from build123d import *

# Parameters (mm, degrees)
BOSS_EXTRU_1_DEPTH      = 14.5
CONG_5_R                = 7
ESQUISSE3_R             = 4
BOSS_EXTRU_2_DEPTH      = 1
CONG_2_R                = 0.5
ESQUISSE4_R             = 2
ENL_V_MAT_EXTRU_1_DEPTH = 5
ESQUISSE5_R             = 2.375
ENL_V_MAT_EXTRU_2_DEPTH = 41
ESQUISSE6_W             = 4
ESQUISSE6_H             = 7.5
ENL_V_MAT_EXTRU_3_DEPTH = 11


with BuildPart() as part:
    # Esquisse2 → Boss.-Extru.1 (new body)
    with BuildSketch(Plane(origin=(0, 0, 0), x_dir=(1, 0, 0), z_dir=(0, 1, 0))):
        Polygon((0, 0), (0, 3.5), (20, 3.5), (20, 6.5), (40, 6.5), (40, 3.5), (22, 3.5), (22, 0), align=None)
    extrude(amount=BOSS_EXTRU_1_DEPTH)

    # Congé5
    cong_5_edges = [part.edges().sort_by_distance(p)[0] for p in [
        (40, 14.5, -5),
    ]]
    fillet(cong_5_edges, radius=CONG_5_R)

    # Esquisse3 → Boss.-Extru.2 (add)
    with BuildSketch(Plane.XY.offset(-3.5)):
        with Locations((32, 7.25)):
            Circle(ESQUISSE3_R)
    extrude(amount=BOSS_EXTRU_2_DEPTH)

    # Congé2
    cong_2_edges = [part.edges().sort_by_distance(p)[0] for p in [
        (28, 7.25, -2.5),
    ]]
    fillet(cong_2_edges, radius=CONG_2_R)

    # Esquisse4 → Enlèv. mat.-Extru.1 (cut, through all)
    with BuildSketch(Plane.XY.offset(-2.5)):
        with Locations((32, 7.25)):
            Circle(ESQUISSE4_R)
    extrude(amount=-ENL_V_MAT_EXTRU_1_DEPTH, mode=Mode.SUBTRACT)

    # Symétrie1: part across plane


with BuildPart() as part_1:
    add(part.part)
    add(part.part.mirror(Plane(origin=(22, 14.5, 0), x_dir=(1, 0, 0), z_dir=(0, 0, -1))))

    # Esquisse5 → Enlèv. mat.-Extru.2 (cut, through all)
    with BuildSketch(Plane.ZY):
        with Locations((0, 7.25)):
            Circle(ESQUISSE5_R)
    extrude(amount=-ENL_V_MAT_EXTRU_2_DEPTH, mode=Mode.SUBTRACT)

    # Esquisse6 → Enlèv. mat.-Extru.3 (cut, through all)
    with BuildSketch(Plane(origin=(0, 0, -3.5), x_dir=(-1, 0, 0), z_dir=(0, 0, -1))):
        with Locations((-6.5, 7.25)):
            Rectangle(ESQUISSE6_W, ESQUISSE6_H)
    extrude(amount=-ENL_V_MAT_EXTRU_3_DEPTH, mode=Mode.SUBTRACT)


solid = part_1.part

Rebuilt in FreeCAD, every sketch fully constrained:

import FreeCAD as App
import Part
import Sketcher
from FreeCAD import Vector
Q = App.Units.Quantity


def edges_at(feature, points):
    """Names of the edges that pass closest to the given points."""
    edges = feature.Shape.Edges
    near = lambda p: min(range(len(edges)), key=lambda i: edges[i].distToShape(Part.Vertex(*p))[0])
    return sorted({f"Edge{near(p) + 1}" for p in points})


def add_polygon(sketch, points):
    """Adds a closed chain of lines whose ends are joined by coincident constraints."""
    first, n = sketch.GeometryCount, len(points)
    for a, b in zip(points, points[1:] + points[:1]):
        sketch.addGeometry(Part.LineSegment(App.Vector(*a, 0), App.Vector(*b, 0)), False)
    for i in range(n):
        sketch.addConstraint(Sketcher.Constraint("Coincident", first + i, 2, first + (i + 1) % n, 1))

doc = App.newDocument("Part")
body = doc.addObject("PartDesign::Body", "Body")

sketch1 = body.newObject("Sketcher::SketchObject", "Sketch")
sketch1.AttachmentSupport = (doc.getObject("XZ_Plane"), [""])
sketch1.MapMode = "FlatFace"
add_polygon(sketch1, [(0, -3.5), (0, 0), (22, 0), (22, -3.5), (40, -3.5), (40, -6.5), (20, -6.5), (20, -3.5)])
sketch1.addConstraint([
    Sketcher.Constraint("Vertical", 0),
    Sketcher.Constraint("Horizontal", 1),
    Sketcher.Constraint("Vertical", 2),
    Sketcher.Constraint("Horizontal", 3),
    Sketcher.Constraint("Vertical", 4),
    Sketcher.Constraint("Horizontal", 5),
    Sketcher.Constraint("Vertical", 6),
    Sketcher.Constraint("Horizontal", 7),
    Sketcher.Constraint("Coincident", 0, 2, -1, 1),
    Sketcher.Constraint("Horizontal", 3, 2, 6, 2),
    Sketcher.Constraint("Equal", 5, 7),
    Sketcher.Constraint("DistanceX", 1, 1, 1, 2, Q("22 mm")),
    Sketcher.Constraint("DistanceX", 3, 1, 3, 2, Q("18 mm")),
    Sketcher.Constraint("DistanceY", 4, 2, 4, 1, Q("3 mm")),
    Sketcher.Constraint("DistanceY", 0, 1, 0, 2, Q("3.5 mm")),
])
pad1 = body.newObject("PartDesign::Pad", "Pad")
pad1.Profile = sketch1
pad1.Length = 14.5
pad1.Reversed = True
doc.recompute()

fillet = body.newObject("PartDesign::Fillet", "Fillet")
fillet.Base = (pad1, edges_at(pad1, [(40, 14.5, -5)]))
fillet.Radius = 7

sketch2 = body.newObject("Sketcher::SketchObject", "Sketch001")
sketch2.AttachmentSupport = (doc.getObject("XY_Plane"), [""])
sketch2.MapMode = "FlatFace"
sketch2.AttachmentOffset = App.Placement(Vector(0, 0, -3.5), App.Rotation())
sketch2.addGeometry(Part.Circle(Vector(32, 7.25, 0), Vector(0, 0, 1), 4), False)
sketch2.addConstraint([
    Sketcher.Constraint("Diameter", 0, Q("8 mm")),
    Sketcher.Constraint("DistanceX", -1, 1, 0, 3, Q("32 mm")),
    Sketcher.Constraint("DistanceY", -1, 1, 0, 3, Q("7.25 mm")),
])
pad2 = body.newObject("PartDesign::Pad", "Pad001")
pad2.Profile = sketch2
pad2.Length = 1
doc.recompute()

fillet2 = body.newObject("PartDesign::Fillet", "Fillet001")
fillet2.Base = (pad2, edges_at(pad2, [(28, 7.25, -2.5)]))
fillet2.Radius = 0.5

sketch3 = body.newObject("Sketcher::SketchObject", "Sketch002")
sketch3.AttachmentSupport = (doc.getObject("XY_Plane"), [""])
sketch3.MapMode = "FlatFace"
sketch3.AttachmentOffset = App.Placement(Vector(0, 0, -2.5), App.Rotation())
sketch3.addGeometry(Part.Circle(Vector(32, 7.25, 0), Vector(0, 0, 1), 2), False)
sketch3.addConstraint([
    Sketcher.Constraint("Diameter", 0, Q("4 mm")),
    Sketcher.Constraint("DistanceX", -1, 1, 0, 3, Q("32 mm")),
    Sketcher.Constraint("DistanceY", -1, 1, 0, 3, Q("7.25 mm")),
])
pocket1 = body.newObject("PartDesign::Pocket", "Pocket")
pocket1.Profile = sketch3
pocket1.Type = "ThroughAll"
body2 = doc.addObject("PartDesign::Body", "Body001")
doc.recompute()

body2.BaseFeature = body
doc.recompute()

mirroring = doc.addObject("Part::Mirroring", "Mirroring")
mirroring.Source = body
mirroring.Base = Vector(22, 14.5, 0)
mirroring.Normal = Vector(0, 0, -1)
body3 = doc.addObject("PartDesign::Body", "Body002")
body3.BaseFeature = mirroring
boolean = body2.newObject("PartDesign::Boolean", "Boolean")
boolean.Type = "Fuse"
boolean.addObjects([body3])
doc.recompute()

sketch4 = body2.newObject("Sketcher::SketchObject", "Sketch003")
sketch4.AttachmentSupport = (doc.getObject("YZ_Plane001"), [""])
sketch4.MapMode = "FlatFace"
sketch4.addGeometry(Part.Circle(Vector(7.25, 0, 0), Vector(0, 0, 1), 2.375), False)
sketch4.addConstraint([
    Sketcher.Constraint("PointOnObject", 0, 3, -1),
    Sketcher.Constraint("Diameter", 0, Q("4.75 mm")),
    Sketcher.Constraint("DistanceX", -1, 1, 0, 3, Q("7.25 mm")),
])
pocket2 = body2.newObject("PartDesign::Pocket", "Pocket001")
pocket2.Profile = sketch4
pocket2.Type = "ThroughAll"
pocket2.Reversed = True

sketch5 = body2.newObject("Sketcher::SketchObject", "Sketch004")
sketch5.AttachmentSupport = (doc.getObject("XY_Plane001"), [""])
sketch5.MapMode = "FlatFace"
sketch5.AttachmentOffset = App.Placement(Vector(0, 0, -3.5), App.Rotation())
add_polygon(sketch5, [(8.5, 11), (8.5, 3.5), (4.5, 3.5), (4.5, 11)])
sketch5.addConstraint([
    Sketcher.Constraint("Vertical", 0),
    Sketcher.Constraint("Horizontal", 1),
    Sketcher.Constraint("Vertical", 2),
    Sketcher.Constraint("Horizontal", 3),
    Sketcher.Constraint("DistanceX", 1, 2, 1, 1, Q("4 mm")),
    Sketcher.Constraint("DistanceY", 0, 2, 0, 1, Q("7.5 mm")),
    Sketcher.Constraint("DistanceY", -1, 1, 2, 2, Q("11 mm")),
    Sketcher.Constraint("DistanceX", -1, 1, 0, 2, Q("8.5 mm")),
])
pocket3 = body2.newObject("PartDesign::Pocket", "Pocket002")
pocket3.Profile = sketch5
pocket3.Type = "ThroughAll"
pocket3.Reversed = True
mirroring.Visibility = False

doc.recompute()
